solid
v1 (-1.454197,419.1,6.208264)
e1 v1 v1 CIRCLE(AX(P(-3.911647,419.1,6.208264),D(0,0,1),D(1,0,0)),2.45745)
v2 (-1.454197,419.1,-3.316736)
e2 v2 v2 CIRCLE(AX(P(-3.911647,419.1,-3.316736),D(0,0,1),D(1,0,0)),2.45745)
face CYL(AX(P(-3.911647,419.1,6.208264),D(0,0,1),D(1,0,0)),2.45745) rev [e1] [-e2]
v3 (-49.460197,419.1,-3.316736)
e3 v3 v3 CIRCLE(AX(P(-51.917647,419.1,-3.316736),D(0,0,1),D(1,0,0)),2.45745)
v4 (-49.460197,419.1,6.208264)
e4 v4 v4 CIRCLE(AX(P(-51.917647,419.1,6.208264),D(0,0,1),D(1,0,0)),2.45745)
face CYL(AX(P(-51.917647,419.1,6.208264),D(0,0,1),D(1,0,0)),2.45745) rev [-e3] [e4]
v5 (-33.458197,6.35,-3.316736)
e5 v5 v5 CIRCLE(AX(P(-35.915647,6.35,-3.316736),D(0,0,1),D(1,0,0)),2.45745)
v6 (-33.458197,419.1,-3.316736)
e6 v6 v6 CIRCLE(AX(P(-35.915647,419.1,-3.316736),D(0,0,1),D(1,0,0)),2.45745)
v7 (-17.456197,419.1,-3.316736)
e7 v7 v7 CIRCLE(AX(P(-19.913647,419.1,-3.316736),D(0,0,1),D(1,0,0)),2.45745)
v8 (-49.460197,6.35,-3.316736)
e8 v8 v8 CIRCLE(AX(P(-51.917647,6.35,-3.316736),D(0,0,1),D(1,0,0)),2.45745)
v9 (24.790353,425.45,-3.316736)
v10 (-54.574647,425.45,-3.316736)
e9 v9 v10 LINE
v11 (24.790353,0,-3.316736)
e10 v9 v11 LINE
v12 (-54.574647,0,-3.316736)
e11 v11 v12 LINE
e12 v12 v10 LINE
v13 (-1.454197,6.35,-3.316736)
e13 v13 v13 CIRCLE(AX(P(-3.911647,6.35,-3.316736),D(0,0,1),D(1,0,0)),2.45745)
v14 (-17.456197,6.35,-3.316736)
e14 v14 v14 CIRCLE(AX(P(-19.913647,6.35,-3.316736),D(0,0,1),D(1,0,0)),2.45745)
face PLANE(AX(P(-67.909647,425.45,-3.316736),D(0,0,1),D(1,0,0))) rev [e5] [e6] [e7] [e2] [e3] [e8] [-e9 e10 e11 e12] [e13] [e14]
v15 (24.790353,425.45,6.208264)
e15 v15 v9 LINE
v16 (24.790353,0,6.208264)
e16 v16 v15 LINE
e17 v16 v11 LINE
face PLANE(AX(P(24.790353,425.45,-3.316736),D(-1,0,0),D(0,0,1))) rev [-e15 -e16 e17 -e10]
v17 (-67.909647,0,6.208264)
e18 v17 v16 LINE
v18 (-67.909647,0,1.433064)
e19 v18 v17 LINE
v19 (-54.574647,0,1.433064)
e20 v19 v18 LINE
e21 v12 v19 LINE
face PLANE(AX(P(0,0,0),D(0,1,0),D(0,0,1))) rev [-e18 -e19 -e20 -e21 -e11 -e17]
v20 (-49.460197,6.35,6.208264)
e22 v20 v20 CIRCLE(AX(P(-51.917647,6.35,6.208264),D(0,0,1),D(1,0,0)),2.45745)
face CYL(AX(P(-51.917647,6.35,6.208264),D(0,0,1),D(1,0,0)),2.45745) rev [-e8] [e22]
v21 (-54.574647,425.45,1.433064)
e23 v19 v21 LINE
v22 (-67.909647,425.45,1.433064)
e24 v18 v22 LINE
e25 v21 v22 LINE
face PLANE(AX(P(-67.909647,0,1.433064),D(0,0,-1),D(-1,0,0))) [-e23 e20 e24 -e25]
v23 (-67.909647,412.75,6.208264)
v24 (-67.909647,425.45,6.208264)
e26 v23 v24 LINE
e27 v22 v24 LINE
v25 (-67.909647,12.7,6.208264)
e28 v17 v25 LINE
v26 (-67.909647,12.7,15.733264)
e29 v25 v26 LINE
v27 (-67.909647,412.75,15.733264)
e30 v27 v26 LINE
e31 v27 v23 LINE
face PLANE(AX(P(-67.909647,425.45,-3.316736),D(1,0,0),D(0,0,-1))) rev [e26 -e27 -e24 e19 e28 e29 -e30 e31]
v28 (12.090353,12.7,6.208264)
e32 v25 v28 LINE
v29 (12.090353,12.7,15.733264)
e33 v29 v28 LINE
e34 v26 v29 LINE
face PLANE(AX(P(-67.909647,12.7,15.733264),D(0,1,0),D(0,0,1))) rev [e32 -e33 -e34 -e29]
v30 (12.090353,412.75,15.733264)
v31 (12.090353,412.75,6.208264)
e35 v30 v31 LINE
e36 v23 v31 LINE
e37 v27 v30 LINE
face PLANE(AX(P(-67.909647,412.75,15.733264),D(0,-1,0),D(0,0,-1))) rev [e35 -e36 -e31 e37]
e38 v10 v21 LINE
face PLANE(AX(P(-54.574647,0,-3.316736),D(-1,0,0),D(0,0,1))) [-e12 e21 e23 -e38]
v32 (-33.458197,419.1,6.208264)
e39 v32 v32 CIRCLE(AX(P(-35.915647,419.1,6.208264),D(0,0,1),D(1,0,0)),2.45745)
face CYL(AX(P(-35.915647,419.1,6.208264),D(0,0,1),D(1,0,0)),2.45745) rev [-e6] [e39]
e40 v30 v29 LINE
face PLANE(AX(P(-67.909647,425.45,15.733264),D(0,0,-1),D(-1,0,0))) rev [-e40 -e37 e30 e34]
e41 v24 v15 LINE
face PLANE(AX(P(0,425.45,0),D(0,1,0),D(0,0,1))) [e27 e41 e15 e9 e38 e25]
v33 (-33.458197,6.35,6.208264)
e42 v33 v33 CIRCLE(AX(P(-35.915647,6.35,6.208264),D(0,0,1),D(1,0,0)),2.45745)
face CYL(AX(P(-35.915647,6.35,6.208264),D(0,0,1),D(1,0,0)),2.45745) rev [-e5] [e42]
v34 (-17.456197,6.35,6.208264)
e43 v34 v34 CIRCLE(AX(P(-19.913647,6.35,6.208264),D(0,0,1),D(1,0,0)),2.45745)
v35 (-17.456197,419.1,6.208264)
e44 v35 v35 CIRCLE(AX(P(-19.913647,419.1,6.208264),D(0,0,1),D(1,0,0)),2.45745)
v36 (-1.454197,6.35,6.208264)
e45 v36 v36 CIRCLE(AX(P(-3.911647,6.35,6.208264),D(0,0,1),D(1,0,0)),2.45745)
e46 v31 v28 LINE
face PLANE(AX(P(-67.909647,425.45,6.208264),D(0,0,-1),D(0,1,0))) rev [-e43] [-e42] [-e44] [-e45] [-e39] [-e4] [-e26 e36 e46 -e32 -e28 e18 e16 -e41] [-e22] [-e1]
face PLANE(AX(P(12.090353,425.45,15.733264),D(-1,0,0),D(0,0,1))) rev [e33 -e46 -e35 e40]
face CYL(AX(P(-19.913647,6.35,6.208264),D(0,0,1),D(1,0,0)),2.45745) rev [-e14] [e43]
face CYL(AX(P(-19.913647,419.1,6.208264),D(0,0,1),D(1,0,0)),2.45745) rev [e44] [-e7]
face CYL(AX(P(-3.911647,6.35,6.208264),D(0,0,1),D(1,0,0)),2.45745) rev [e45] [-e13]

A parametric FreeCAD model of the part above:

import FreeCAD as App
import Part
import Sketcher

V = App.Vector
Q = App.Units.Quantity


def add_polygon(sketch, points):
    """Adds a closed chain of lines whose ends are joined by coincident constraints."""
    first, n = sketch.GeometryCount, len(points)
    for a, b in zip(points, points[1:] + points[:1]):
        sketch.addGeometry(Part.LineSegment(App.Vector(*a, 0), App.Vector(*b, 0)), False)
    for i in range(n):
        sketch.addConstraint(Sketcher.Constraint("Coincident", first + i, 2, first + (i + 1) % n, 1))

doc = App.newDocument("Part")
params = doc.addObject("Spreadsheet::Sheet", "Params")
for row, (alias, value) in enumerate([
    ("sketch1_height", "0.75 in"),
    ("pad1_length", "16.75 in"),
    ("sketch2_width", "0.5 in"),
    ("sketch2_height", "0.375 in"),
    ("sketch3_width", "0.5 in"),
    ("sketch3_height", "0.375 in"),
    ("hole_diameter", "0.1935 in"),
    ("sketch5_width", "0.525 in"),
    ("sketch5_height", "0.187 in"),
], start=1):
    params.set(f"A{row}", alias)
    params.set(f"B{row}", "=" + value)
    params.setAlias(f"B{row}", alias)

body = doc.addObject("PartDesign::Body", "Body")

# Sketch on XZ plane
sketch1 = body.newObject("Sketcher::SketchObject", "Sketch")
sketch1.AttachmentSupport = (doc.getObject("XZ_Plane"), [""])
sketch1.MapMode = "FlatFace"
add_polygon(sketch1, [(-67.909647, -3.316736), (-67.909647, 15.733264), (24.790353, 15.733264), (24.790353, -3.316736)])  # lines 0-3
sketch1.addConstraint(Sketcher.Constraint("Vertical", 0))
sketch1.addConstraint(Sketcher.Constraint("Horizontal", 1))
sketch1.addConstraint(Sketcher.Constraint("Vertical", 2))
sketch1.addConstraint(Sketcher.Constraint("Horizontal", 3))
sketch1.addConstraint(Sketcher.Constraint("DistanceY", 0, 1, 0, 2, Q("0.75 in")))
sketch1.addConstraint(Sketcher.Constraint("DistanceX", 1, 1, 1, 2, Q("92.7 mm")))
sketch1.addConstraint(Sketcher.Constraint("DistanceX", 0, 2, -1, 1, Q("67.909647 mm")))
sketch1.addConstraint(Sketcher.Constraint("DistanceY", -1, 1, 0, 2, Q("15.733264 mm")))
sketch1.setExpression("Constraints[8]", "Params.sketch1_height")
pad1 = body.newObject("PartDesign::Pad", "Pad")
pad1.Profile = sketch1
pad1.setExpression("Length", "Params.pad1_length")
pad1.Reversed = True

# Sketch on YZ plane
sketch2 = body.newObject("Sketcher::SketchObject", "Sketch001")
sketch2.AttachmentSupport = (doc.getObject("YZ_Plane"), [""])
sketch2.MapMode = "FlatFace"
sketch2.AttachmentOffset = App.Placement(V(0, 0, 24.790353), App.Rotation())
add_polygon(sketch2, [(425.45, 15.733264), (412.75, 15.733264), (412.75, 6.208264), (425.45, 6.208264)])  # lines 0-3
add_polygon(sketch2, [(12.7, 15.733264), (0, 15.733264), (0, 6.208264), (12.7, 6.208264)])  # lines 4-7
sketch2.addConstraint(Sketcher.Constraint("Horizontal", 0))
sketch2.addConstraint(Sketcher.Constraint("Vertical", 1))
sketch2.addConstraint(Sketcher.Constraint("Horizontal", 2))
sketch2.addConstraint(Sketcher.Constraint("Vertical", 3))
sketch2.addConstraint(Sketcher.Constraint("Horizontal", 4))
sketch2.addConstraint(Sketcher.Constraint("Vertical", 5))
sketch2.addConstraint(Sketcher.Constraint("Horizontal", 6))
sketch2.addConstraint(Sketcher.Constraint("Vertical", 7))
sketch2.addConstraint(Sketcher.Constraint("PointOnObject", 4, 2, -2))
sketch2.addConstraint(Sketcher.Constraint("Horizontal", 3, 2, 4, 2))
sketch2.addConstraint(Sketcher.Constraint("Horizontal", 2, 2, 5, 2))
sketch2.addConstraint(Sketcher.Constraint("Equal", 2, 4))
sketch2.addConstraint(Sketcher.Constraint("DistanceX", 0, 2, 0, 1, Q("0.5 in")))
sketch2.addConstraint(Sketcher.Constraint("DistanceY", 1, 2, 1, 1, Q("0.375 in")))
sketch2.addConstraint(Sketcher.Constraint("DistanceX", -1, 1, 0, 2, Q("16.25 in")))
sketch2.addConstraint(Sketcher.Constraint("DistanceY", -1, 1, 0, 2, Q("15.733264 mm")))
sketch2.setExpression("Constraints[20]", "Params.sketch2_width")
sketch2.setExpression("Constraints[21]", "Params.sketch2_height")
pocket1 = body.newObject("PartDesign::Pocket", "Pocket")
pocket1.Profile = sketch2
pocket1.Type = "ThroughAll"

# Sketch on XZ plane
sketch3 = body.newObject("Sketcher::SketchObject", "Sketch002")
sketch3.AttachmentSupport = (doc.getObject("XZ_Plane"), [""])
sketch3.MapMode = "FlatFace"
sketch3.AttachmentOffset = App.Placement(V(0, 0, -0.5 * 25.4), App.Rotation())
add_polygon(sketch3, [(12.090353, 15.733264), (12.090353, 6.208264), (24.790353, 6.208264), (24.790353, 15.733264)])  # lines 0-3
sketch3.addConstraint(Sketcher.Constraint("Vertical", 0))
sketch3.addConstraint(Sketcher.Constraint("Horizontal", 1))
sketch3.addConstraint(Sketcher.Constraint("Vertical", 2))
sketch3.addConstraint(Sketcher.Constraint("Horizontal", 3))
sketch3.addConstraint(Sketcher.Constraint("DistanceX", 1, 1, 1, 2, Q("0.5 in")))
sketch3.addConstraint(Sketcher.Constraint("DistanceY", 0, 2, 0, 1, Q("0.375 in")))
sketch3.addConstraint(Sketcher.Constraint("DistanceX", -1, 1, 0, 2, Q("12.090353 mm")))
sketch3.addConstraint(Sketcher.Constraint("DistanceY", -1, 1, 0, 2, Q("6.208264 mm")))
sketch3.setExpression("Constraints[8]", "Params.sketch3_width")
sketch3.setExpression("Constraints[9]", "Params.sketch3_height")
pocket2 = body.newObject("PartDesign::Pocket", "Pocket001")
pocket2.Profile = sketch3
pocket2.Type = "ThroughAll"

# Sketch on XY plane
sketch4 = body.newObject("Sketcher::SketchObject", "Sketch003")
sketch4.AttachmentSupport = (doc.getObject("XY_Plane"), [""])
sketch4.MapMode = "FlatFace"
sketch4.AttachmentOffset = App.Placement(V(0, 0, 6.208264), App.Rotation())
sketch4.addGeometry(Part.Circle(V(-51.917647, 6.35, 0), V(0, 0, 1), 2.45745), False)
sketch4.addGeometry(Part.Circle(V(-35.915647, 6.35, 0), V(0, 0, 1), 2.45745), False)
sketch4.addGeometry(Part.Circle(V(-19.913647, 6.35, 0), V(0, 0, 1), 2.45745), False)
sketch4.addGeometry(Part.Circle(V(-3.911647, 6.35, 0), V(0, 0, 1), 2.45745), False)
sketch4.addGeometry(Part.Circle(V(-51.917647, 419.1, 0), V(0, 0, 1), 2.45745), False)
sketch4.addGeometry(Part.Circle(V(-35.915647, 419.1, 0), V(0, 0, 1), 2.45745), False)
sketch4.addGeometry(Part.Circle(V(-19.913647, 419.1, 0), V(0, 0, 1), 2.45745), False)
sketch4.addGeometry(Part.Circle(V(-3.911647, 419.1, 0), V(0, 0, 1), 2.45745), False)
sketch4.addConstraint(Sketcher.Constraint("Equal", 0, 1))
sketch4.addConstraint(Sketcher.Constraint("Equal", 1, 2))
sketch4.addConstraint(Sketcher.Constraint("Equal", 2, 3))
sketch4.addConstraint(Sketcher.Constraint("Equal", 3, 4))
sketch4.addConstraint(Sketcher.Constraint("Equal", 4, 5))
sketch4.addConstraint(Sketcher.Constraint("Equal", 5, 6))
sketch4.addConstraint(Sketcher.Constraint("Equal", 6, 7))
sketch4.addConstraint(Sketcher.Constraint("Horizontal", 0, 3, 1, 3))
sketch4.addConstraint(Sketcher.Constraint("Horizontal", 1, 3, 2, 3))
sketch4.addConstraint(Sketcher.Constraint("Horizontal", 2, 3, 3, 3))
sketch4.addConstraint(Sketcher.Constraint("Horizontal", 4, 3, 5, 3))
sketch4.addConstraint(Sketcher.Constraint("Horizontal", 5, 3, 6, 3))
sketch4.addConstraint(Sketcher.Constraint("Horizontal", 6, 3, 7, 3))
sketch4.addConstraint(Sketcher.Constraint("Vertical", 0, 3, 4, 3))
sketch4.addConstraint(Sketcher.Constraint("Vertical", 1, 3, 5, 3))
sketch4.addConstraint(Sketcher.Constraint("Vertical", 2, 3, 6, 3))
sketch4.addConstraint(Sketcher.Constraint("Vertical", 3, 3, 7, 3))
sketch4.addConstraint(Sketcher.Constraint("Diameter", 0, Q("0.1935 in")))
sketch4.addConstraint(Sketcher.Constraint("DistanceY", -1, 1, 4, 3, Q("16.5 in")))
sketch4.addConstraint(Sketcher.Constraint("DistanceY", -1, 1, 0, 3, Q("0.25 in")))
sketch4.addConstraint(Sketcher.Constraint("DistanceX", 0, 3, 1, 3, Q("0.63 in")))
sketch4.addConstraint(Sketcher.Constraint("DistanceX", 1, 3, 2, 3, Q("0.63 in")))
sketch4.addConstraint(Sketcher.Constraint("DistanceX", 2, 3, 3, 3, Q("0.63 in")))
sketch4.addConstraint(Sketcher.Constraint("DistanceX", 0, 3, -1, 1, Q("51.917647 mm")))
doc.recompute()
hole = body.newObject("PartDesign::Hole", "Hole")
hole.Profile = sketch4
hole.ThreadType = "None"
hole.setExpression("Diameter", "Params.hole_diameter")
hole.DepthType = "ThroughAll"

# Sketch on XZ plane
sketch5 = body.newObject("Sketcher::SketchObject", "Sketch004")
sketch5.AttachmentSupport = (doc.getObject("XZ_Plane"), [""])
sketch5.MapMode = "FlatFace"
sketch5.AttachmentOffset = App.Placement(V(0, 0, -16.75 * 25.4), App.Rotation())
add_polygon(sketch5, [(-67.909647, 1.433064), (-67.909647, -3.316736), (-54.574647, -3.316736), (-54.574647, 1.433064)])  # lines 0-3
sketch5.addConstraint(Sketcher.Constraint("Vertical", 0))
sketch5.addConstraint(Sketcher.Constraint("Horizontal", 1))
sketch5.addConstraint(Sketcher.Constraint("Vertical", 2))
sketch5.addConstraint(Sketcher.Constraint("Horizontal", 3))
sketch5.addConstraint(Sketcher.Constraint("DistanceX", 1, 1, 1, 2, Q("0.525 in")))
sketch5.addConstraint(Sketcher.Constraint("DistanceY", 0, 2, 0, 1, Q("0.187 in")))
sketch5.addConstraint(Sketcher.Constraint("DistanceX", 0, 2, -1, 1, Q("67.909647 mm")))
sketch5.addConstraint(Sketcher.Constraint("DistanceY", 0, 2, -1, 1, Q("3.316736 mm")))
sketch5.setExpression("Constraints[8]", "Params.sketch5_width")
sketch5.setExpression("Constraints[9]", "Params.sketch5_height")
pocket3 = body.newObject("PartDesign::Pocket", "Pocket002")
pocket3.Profile = sketch5
pocket3.Type = "ThroughAll"
pocket3.Reversed = True

doc.recompute()
